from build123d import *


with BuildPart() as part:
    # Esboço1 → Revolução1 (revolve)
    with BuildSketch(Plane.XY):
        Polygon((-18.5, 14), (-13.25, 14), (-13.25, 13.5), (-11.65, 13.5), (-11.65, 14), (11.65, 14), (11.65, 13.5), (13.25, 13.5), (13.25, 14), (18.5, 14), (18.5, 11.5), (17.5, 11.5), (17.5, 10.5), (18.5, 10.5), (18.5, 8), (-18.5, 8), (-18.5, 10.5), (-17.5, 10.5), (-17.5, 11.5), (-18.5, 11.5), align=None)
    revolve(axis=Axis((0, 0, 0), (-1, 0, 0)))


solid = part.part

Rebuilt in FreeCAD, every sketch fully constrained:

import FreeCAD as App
import Part
import Sketcher
from FreeCAD import Vector


def add_polygon(sketch, points):
    """Adds a closed chain of lines whose ends are joined by coincident constraints."""
    first, n = sketch.GeometryCount, len(points)
    for a, b in zip(points, points[1:] + points[:1]):
        sketch.addGeometry(Part.LineSegment(App.Vector(*a, 0), App.Vector(*b, 0)), False)
    for i in range(n):
        sketch.addConstraint(Sketcher.Constraint("Coincident", first + i, 2, first + (i + 1) % n, 1))

doc = App.newDocument("Part")
body = doc.addObject("PartDesign::Body", "Body")

# Sketch on XY plane
sketch1 = doc.addObject("Sketcher::SketchObject", "Sketch")
body.addObject(sketch1)
sketch1.AttachmentSupport = (doc.XY_Plane, [""])
sketch1.MapMode = "FlatFace"
add_polygon(sketch1, [(-13.25, 14), (-18.5, 14), (-18.5, 11.5), (-17.5, 11.5), (-17.5, 10.5), (-18.5, 10.5), (-18.5, 8), (18.5, 8), (18.5, 10.5), (17.5, 10.5), (17.5, 11.5), (18.5, 11.5), (18.5, 14), (13.25, 14), (13.25, 13.5), (11.65, 13.5), (11.65, 14), (-11.65, 14), (-11.65, 13.5), (-13.25, 13.5)])  # lines 0-19
sketch1.addConstraint([
    Sketcher.Constraint("Horizontal", 0),
    Sketcher.Constraint("Vertical", 1),
    Sketcher.Constraint("Horizontal", 2),
    Sketcher.Constraint("Vertical", 3),
    Sketcher.Constraint("Horizontal", 4),
    Sketcher.Constraint("Vertical", 5),
    Sketcher.Constraint("Horizontal", 6),
    Sketcher.Constraint("Vertical", 7),
    Sketcher.Constraint("Horizontal", 8),
    Sketcher.Constraint("Vertical", 9),
    Sketcher.Constraint("Horizontal", 10),
    Sketcher.Constraint("Vertical", 11),
    Sketcher.Constraint("Horizontal", 12),
    Sketcher.Constraint("Vertical", 13),
    Sketcher.Constraint("Horizontal", 14),
    Sketcher.Constraint("Vertical", 15),
    Sketcher.Constraint("Horizontal", 16),
    Sketcher.Constraint("Vertical", 17),
    Sketcher.Constraint("Horizontal", 18),
    Sketcher.Constraint("Vertical", 19),
    Sketcher.Constraint("Symmetric", 4, 2, 7, 2, -2),
    Sketcher.Constraint("Symmetric", 2, 2, 9, 2, -2),
    Sketcher.Constraint("Symmetric", 0, 2, 11, 2, -2),
    Sketcher.Constraint("Symmetric", 14, 2, 17, 2, -2),
    Sketcher.Constraint("Horizontal", 12, 2, 15, 2),
    Sketcher.Constraint("Vertical", 1, 2, 4, 2),
    Sketcher.Constraint("Equal", 0, 12),
    Sketcher.Constraint("Equal", 10, 3),
    Sketcher.Constraint("Equal", 1, 5),
    Sketcher.Constraint("DistanceX", 2, 1, 2, 2, 1.0),
    Sketcher.Constraint("DistanceX", 6, 1, 6, 2, 37.0),
    Sketcher.Constraint("DistanceX", 14, 2, 14, 1, 1.6),
    Sketcher.Constraint("DistanceX", 16, 2, 16, 1, 23.3),
    Sketcher.Constraint("DistanceY", 1, 2, 1, 1, 2.5),
    Sketcher.Constraint("DistanceY", 13, 2, 13, 1, 0.5),
    Sketcher.Constraint("DistanceY", -1, 1, 0, 2, 14.0),
])
revolution = doc.addObject("PartDesign::Revolution", "Revolution")
body.addObject(revolution)
revolution.Profile = sketch1
revolution.ReferenceAxis = (sketch1, ["H_Axis"])
revolution.Angle = 360

doc.recompute()
